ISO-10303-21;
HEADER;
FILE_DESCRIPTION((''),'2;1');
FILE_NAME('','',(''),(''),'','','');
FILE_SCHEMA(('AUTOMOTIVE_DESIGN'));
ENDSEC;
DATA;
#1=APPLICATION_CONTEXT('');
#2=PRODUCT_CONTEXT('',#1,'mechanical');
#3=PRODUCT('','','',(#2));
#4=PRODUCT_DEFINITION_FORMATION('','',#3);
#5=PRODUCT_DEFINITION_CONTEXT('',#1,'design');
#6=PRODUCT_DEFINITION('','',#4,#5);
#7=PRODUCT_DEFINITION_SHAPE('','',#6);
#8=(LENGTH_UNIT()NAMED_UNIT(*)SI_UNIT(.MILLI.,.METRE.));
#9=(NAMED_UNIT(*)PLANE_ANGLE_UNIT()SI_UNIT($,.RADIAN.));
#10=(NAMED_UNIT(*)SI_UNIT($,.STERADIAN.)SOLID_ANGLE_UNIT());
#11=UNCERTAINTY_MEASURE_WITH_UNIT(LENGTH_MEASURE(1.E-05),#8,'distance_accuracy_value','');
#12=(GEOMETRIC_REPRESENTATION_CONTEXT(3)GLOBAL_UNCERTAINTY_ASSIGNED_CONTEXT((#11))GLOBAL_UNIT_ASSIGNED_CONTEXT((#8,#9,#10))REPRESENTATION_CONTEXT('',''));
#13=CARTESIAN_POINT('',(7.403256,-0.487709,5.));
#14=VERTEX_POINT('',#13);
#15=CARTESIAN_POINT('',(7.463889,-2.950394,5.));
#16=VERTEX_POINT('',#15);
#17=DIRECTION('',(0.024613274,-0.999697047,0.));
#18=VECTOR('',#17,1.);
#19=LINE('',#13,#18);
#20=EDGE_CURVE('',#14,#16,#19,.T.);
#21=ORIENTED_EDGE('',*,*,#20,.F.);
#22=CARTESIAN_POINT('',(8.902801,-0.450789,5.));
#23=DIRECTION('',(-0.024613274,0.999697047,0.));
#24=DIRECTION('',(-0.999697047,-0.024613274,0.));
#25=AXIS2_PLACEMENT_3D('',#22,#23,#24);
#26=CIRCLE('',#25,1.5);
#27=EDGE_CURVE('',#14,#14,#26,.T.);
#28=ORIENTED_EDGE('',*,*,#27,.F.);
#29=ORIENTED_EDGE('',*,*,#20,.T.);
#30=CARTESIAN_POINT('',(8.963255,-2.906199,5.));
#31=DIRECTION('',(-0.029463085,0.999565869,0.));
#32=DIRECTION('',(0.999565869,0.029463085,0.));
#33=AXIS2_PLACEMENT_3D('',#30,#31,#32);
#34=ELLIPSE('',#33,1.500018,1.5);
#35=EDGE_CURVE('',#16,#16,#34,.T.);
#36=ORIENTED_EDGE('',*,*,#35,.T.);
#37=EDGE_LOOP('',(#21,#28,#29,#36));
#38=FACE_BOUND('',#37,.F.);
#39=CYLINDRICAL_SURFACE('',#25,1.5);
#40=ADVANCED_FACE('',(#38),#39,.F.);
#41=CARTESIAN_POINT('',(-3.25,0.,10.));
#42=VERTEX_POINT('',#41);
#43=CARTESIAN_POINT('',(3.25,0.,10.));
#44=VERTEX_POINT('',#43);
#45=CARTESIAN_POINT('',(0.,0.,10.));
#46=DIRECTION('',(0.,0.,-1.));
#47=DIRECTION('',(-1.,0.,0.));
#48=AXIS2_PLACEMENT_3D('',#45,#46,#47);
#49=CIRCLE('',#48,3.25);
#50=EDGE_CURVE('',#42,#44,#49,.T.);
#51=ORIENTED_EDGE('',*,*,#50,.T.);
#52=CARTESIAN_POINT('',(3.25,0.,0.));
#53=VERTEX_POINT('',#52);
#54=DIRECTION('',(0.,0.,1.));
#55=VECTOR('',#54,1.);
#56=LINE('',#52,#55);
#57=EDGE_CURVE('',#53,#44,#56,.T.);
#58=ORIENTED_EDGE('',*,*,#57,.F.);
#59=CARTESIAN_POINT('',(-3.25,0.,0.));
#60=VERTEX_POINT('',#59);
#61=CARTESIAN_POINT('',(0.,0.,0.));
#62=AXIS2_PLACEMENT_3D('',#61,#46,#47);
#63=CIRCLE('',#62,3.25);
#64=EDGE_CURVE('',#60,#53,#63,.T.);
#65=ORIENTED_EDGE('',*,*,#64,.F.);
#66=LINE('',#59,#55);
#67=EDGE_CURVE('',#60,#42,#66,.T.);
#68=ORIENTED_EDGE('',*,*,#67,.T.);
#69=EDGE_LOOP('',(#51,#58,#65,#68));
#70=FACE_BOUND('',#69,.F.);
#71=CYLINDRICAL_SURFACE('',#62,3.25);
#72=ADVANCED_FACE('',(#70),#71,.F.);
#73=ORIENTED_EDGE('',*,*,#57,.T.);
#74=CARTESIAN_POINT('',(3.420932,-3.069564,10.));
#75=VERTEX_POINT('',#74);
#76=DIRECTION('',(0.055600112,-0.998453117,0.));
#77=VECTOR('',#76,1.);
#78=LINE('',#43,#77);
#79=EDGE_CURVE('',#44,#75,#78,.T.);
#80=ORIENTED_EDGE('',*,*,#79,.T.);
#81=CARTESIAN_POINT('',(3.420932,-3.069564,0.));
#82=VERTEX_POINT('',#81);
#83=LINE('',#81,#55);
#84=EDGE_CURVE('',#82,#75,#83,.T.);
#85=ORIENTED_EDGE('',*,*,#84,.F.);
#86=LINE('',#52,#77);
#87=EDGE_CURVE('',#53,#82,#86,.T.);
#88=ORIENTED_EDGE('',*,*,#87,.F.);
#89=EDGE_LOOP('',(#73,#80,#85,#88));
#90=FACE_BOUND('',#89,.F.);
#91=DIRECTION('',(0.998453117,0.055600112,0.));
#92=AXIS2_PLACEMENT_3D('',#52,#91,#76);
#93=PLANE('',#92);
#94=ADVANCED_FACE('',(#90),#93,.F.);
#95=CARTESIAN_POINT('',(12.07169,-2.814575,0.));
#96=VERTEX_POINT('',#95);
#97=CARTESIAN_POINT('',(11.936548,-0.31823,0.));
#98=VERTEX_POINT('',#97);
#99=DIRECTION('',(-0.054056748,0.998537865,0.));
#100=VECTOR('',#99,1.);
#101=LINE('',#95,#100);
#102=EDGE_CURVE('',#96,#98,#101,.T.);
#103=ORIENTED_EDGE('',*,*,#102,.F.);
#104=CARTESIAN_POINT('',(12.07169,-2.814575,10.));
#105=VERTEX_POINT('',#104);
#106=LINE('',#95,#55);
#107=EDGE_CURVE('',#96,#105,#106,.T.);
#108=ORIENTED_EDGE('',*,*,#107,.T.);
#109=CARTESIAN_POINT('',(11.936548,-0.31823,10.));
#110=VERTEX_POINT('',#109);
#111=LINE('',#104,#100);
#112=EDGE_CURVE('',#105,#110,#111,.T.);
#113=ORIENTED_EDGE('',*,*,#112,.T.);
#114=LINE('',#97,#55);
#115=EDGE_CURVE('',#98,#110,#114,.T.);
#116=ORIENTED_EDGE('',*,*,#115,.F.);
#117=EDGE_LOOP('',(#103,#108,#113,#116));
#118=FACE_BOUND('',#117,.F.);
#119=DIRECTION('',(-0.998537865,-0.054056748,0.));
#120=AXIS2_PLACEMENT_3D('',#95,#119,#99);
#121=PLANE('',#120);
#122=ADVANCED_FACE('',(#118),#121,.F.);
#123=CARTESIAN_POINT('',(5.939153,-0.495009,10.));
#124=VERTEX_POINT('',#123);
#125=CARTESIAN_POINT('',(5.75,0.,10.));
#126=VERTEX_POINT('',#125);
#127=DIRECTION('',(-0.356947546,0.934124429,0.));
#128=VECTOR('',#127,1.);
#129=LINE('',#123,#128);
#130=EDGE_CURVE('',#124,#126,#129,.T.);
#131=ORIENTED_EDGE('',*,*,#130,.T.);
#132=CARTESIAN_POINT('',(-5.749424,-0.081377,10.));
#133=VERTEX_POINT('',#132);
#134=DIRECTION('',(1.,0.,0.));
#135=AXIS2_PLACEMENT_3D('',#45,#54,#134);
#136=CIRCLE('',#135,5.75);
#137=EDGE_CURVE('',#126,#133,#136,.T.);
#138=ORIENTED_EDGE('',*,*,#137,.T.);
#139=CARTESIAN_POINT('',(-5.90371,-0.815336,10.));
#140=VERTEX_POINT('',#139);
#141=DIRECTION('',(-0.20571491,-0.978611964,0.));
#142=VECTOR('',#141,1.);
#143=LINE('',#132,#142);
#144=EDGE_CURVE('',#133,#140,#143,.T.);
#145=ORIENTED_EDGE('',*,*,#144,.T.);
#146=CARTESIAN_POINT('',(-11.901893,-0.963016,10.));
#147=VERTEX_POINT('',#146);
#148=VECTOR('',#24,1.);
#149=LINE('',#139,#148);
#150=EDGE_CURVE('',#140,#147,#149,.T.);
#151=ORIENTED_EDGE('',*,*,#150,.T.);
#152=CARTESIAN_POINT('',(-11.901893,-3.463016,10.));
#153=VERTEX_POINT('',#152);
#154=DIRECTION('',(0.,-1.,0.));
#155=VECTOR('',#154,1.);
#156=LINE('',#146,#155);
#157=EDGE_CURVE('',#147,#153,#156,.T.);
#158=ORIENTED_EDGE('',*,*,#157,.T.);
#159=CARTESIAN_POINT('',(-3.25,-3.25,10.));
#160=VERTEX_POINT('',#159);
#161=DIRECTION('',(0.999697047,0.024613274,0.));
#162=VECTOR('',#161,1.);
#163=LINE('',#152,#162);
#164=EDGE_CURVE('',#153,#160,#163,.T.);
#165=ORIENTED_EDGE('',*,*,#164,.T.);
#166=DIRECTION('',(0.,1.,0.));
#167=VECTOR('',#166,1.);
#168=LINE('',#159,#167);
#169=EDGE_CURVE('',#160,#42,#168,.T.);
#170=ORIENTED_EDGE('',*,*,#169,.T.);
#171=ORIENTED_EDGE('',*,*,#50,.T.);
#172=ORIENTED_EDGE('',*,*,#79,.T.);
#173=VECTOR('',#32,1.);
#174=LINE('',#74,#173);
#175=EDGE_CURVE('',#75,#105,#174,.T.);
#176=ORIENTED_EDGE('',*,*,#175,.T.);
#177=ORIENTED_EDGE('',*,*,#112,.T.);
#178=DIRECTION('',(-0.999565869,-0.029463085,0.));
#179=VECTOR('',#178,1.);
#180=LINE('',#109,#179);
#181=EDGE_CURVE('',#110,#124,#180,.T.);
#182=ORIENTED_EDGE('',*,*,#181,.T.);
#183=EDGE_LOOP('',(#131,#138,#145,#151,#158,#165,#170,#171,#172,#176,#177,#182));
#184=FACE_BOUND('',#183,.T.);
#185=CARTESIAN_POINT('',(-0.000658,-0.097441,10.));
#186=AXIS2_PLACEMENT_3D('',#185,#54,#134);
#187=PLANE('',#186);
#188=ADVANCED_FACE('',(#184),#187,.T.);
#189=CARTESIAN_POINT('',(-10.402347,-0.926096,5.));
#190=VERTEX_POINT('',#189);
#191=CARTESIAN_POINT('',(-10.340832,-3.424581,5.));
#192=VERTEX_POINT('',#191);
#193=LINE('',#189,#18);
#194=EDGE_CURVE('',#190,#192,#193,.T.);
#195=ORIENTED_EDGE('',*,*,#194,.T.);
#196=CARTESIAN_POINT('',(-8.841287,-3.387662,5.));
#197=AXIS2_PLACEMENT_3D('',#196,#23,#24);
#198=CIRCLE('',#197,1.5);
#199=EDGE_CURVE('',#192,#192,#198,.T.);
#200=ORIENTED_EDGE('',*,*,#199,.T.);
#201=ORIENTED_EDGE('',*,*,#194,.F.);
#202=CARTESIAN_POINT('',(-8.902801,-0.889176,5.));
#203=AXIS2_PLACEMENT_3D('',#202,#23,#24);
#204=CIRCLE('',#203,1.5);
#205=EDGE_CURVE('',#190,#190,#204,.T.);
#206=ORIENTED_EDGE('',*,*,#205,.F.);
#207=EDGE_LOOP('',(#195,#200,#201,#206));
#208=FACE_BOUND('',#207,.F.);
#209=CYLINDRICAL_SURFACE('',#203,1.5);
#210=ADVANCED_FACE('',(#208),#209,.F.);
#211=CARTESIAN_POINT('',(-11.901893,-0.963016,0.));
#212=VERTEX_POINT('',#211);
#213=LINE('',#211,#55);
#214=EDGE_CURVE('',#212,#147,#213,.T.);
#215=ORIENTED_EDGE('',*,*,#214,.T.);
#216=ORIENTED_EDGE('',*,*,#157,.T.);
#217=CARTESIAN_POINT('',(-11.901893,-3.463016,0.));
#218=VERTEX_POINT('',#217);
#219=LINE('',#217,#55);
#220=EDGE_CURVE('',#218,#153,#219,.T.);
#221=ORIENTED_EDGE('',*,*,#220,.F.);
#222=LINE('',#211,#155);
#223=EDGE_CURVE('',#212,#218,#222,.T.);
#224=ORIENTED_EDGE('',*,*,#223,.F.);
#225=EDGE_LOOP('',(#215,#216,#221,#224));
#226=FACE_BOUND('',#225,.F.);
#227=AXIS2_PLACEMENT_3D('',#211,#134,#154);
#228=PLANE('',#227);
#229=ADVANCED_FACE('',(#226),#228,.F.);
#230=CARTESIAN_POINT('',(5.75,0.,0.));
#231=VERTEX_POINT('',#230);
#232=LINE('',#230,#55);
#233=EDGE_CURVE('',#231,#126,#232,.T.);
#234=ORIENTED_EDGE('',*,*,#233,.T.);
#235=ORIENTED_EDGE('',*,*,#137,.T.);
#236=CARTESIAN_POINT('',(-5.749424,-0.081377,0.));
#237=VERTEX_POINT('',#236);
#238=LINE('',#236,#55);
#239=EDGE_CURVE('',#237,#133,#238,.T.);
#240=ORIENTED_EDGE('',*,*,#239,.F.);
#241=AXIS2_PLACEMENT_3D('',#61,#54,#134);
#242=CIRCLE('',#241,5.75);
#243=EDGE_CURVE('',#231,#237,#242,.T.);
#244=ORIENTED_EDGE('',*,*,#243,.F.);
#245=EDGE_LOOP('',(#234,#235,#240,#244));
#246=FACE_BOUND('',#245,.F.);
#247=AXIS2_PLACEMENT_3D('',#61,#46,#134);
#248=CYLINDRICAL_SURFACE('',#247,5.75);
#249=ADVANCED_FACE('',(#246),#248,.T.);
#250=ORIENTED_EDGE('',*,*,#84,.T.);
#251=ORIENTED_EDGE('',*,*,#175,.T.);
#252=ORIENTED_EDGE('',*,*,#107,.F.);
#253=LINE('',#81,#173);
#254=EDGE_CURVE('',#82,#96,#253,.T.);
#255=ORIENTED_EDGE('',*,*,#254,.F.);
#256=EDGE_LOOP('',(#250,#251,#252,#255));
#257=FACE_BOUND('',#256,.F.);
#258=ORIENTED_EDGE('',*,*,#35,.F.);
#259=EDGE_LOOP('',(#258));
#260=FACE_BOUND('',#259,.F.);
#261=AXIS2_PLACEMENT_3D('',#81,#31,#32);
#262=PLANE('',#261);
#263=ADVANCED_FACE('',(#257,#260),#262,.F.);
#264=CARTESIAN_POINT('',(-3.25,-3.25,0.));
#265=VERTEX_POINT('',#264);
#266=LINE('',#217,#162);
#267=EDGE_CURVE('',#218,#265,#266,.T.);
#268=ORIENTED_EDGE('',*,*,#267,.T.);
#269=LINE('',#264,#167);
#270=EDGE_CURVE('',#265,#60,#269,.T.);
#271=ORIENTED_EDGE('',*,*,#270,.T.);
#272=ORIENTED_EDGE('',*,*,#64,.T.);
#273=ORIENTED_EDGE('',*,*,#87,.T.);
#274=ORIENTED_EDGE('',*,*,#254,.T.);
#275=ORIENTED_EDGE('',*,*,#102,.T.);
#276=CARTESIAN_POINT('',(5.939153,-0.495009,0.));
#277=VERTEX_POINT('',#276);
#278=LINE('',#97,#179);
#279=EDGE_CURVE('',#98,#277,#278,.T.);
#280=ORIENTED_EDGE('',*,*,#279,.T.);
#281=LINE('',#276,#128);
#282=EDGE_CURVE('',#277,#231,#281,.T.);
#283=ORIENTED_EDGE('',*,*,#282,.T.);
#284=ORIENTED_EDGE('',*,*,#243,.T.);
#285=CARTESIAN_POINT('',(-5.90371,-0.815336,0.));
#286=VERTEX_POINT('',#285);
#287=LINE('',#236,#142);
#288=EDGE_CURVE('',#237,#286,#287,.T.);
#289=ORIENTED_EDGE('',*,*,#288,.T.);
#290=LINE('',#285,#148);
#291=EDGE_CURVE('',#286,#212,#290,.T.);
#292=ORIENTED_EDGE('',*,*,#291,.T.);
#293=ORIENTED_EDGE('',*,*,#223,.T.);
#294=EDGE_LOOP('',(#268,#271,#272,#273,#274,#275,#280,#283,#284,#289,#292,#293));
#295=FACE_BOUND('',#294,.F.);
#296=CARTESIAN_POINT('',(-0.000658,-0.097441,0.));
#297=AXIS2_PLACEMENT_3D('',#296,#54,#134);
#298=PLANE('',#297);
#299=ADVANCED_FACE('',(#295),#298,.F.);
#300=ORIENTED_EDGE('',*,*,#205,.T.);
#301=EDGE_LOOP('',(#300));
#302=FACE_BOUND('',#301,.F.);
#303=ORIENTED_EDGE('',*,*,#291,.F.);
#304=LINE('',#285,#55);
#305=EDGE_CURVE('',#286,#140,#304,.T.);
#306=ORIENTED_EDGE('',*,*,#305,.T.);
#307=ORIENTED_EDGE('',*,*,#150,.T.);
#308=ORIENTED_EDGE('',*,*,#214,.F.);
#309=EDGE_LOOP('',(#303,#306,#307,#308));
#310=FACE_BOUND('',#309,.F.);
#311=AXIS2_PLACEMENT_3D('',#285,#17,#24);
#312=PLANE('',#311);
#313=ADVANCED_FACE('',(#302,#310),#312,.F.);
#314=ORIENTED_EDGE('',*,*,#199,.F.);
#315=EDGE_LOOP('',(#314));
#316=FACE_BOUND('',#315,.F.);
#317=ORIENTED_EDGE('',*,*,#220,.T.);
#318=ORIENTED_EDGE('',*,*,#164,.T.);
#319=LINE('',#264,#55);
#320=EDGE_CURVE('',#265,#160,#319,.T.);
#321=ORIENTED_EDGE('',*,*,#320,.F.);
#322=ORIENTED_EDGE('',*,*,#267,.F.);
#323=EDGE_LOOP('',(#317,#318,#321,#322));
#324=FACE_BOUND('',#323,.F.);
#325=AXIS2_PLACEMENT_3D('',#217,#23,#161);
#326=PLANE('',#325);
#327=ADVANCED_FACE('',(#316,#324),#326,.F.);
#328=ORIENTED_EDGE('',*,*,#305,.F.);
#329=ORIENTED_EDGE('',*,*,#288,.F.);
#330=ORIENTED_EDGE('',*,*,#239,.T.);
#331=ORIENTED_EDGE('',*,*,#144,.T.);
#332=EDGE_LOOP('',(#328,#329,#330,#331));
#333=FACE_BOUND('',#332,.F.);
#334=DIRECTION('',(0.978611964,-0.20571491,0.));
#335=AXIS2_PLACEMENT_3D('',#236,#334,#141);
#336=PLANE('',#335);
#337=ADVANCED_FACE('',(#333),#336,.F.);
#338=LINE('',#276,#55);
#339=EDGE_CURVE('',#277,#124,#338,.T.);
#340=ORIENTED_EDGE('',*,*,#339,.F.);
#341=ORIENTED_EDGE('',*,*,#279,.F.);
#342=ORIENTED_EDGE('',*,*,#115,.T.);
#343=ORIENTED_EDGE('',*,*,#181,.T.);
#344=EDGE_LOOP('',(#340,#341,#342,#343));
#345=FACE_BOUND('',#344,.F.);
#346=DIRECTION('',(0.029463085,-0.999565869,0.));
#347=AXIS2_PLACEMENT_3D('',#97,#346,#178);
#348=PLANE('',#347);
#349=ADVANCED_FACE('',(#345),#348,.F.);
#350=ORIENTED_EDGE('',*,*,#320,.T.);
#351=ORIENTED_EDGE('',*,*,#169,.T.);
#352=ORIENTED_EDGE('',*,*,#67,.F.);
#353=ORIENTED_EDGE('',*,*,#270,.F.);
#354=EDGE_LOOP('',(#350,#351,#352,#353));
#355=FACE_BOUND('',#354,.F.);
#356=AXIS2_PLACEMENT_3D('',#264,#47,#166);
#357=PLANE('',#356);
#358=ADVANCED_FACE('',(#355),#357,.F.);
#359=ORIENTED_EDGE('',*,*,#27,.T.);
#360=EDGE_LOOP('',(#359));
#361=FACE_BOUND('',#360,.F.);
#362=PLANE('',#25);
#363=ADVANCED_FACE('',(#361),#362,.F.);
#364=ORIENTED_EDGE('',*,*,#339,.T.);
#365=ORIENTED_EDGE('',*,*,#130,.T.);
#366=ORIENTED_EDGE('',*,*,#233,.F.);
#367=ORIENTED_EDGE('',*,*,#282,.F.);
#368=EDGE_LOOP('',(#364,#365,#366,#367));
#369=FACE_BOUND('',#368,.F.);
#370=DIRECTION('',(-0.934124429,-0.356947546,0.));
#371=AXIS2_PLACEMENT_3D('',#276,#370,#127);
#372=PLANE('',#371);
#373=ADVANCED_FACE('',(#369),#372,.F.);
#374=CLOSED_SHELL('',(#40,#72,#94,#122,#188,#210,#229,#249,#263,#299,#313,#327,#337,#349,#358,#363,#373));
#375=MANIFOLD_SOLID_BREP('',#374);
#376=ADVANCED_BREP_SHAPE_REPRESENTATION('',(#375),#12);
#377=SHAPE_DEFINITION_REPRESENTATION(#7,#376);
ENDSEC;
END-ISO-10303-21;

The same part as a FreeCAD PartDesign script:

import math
import FreeCAD as App
import Part
import Sketcher

V = App.Vector
Q = App.Units.Quantity

doc = App.newDocument("Part")
body = doc.addObject("PartDesign::Body", "Body")

# Sketch on XY plane
sketch1 = body.newObject("Sketcher::SketchObject", "Sketch")
sketch1.AttachmentSupport = (doc.getObject("XY_Plane"), [""])
sketch1.MapMode = "FlatFace"
sketch1.addGeometry([
    Part.ArcOfCircle(Part.Circle(V(0, 0, 0), V(0, 0, 1), 3.25), math.radians(0), math.radians(180)),  # 0
    Part.LineSegment(V(3.25, 0, 0), V(3.420932, -3.069564, 0)),  # 1
    Part.LineSegment(V(3.420932, -3.069564, 0), V(12.07169, -2.814575, 0)),  # 2
    Part.LineSegment(V(12.07169, -2.814575, 0), V(11.936548, -0.31823, 0)),  # 3
    Part.LineSegment(V(11.936548, -0.31823, 0), V(5.939153, -0.495009, 0)),  # 4
    Part.LineSegment(V(5.939153, -0.495009, 0), V(5.75, 0, 0)),  # 5
    Part.ArcOfCircle(Part.Circle(V(0, 0, 0), V(0, 0, 1), 5.75), math.radians(0), math.radians(180.81091)),  # 6
    Part.LineSegment(V(-5.749424, -0.081377, 0), V(-5.90371, -0.815336, 0)),  # 7
    Part.LineSegment(V(-5.90371, -0.815336, 0), V(-11.901893, -0.963016, 0)),  # 8
    Part.LineSegment(V(-11.901893, -0.963016, 0), V(-11.901893, -3.463016, 0)),  # 9
    Part.LineSegment(V(-11.901893, -3.463016, 0), V(-3.25, -3.25, 0)),  # 10
    Part.LineSegment(V(-3.25, -3.25, 0), V(-3.25, 0, 0)),  # 11
], False)
sketch1.addConstraint([
    Sketcher.Constraint("Coincident", 0, 1, 1, 1),
    Sketcher.Constraint("Coincident", 1, 2, 2, 1),
    Sketcher.Constraint("Coincident", 2, 2, 3, 1),
    Sketcher.Constraint("Coincident", 3, 2, 4, 1),
    Sketcher.Constraint("Coincident", 4, 2, 5, 1),
    Sketcher.Constraint("Coincident", 5, 2, 6, 1),
    Sketcher.Constraint("Coincident", 6, 2, 7, 1),
    Sketcher.Constraint("Coincident", 7, 2, 8, 1),
    Sketcher.Constraint("Coincident", 8, 2, 9, 1),
    Sketcher.Constraint("Coincident", 9, 2, 10, 1),
    Sketcher.Constraint("Coincident", 10, 2, 11, 1),
    Sketcher.Constraint("Coincident", 11, 2, 0, 2),
    Sketcher.Constraint("Vertical", 9),
    Sketcher.Constraint("Vertical", 11),
    Sketcher.Constraint("Coincident", 0, 3, -1, 1),
    Sketcher.Constraint("Coincident", 6, 3, -1, 1),
    Sketcher.Constraint("PointOnObject", 0, 1, -1),
    Sketcher.Constraint("PointOnObject", 5, 2, -1),
    Sketcher.Constraint("PointOnObject", 11, 2, -1),
    Sketcher.Constraint("Radius", 0, Q("3.25 mm")),
    Sketcher.Constraint("Radius", 6, Q("5.75 mm")),
    Sketcher.Constraint("Distance", 4, Q("6 mm")),
    Sketcher.Constraint("Distance", 8, Q("6 mm")),
    Sketcher.Constraint("DistanceY", 9, 2, 9, 1, Q("2.5 mm")),
    Sketcher.Constraint("Distance", 3, Q("2.5 mm")),
    Sketcher.Constraint("DistanceY", 11, 1, 11, 2, Q("3.25 mm")),
    Sketcher.Constraint("Distance", 7, Q("0.75 mm")),
    Sketcher.Constraint("Distance", 1, Q("3.074319 mm")),
    Sketcher.Constraint("DistanceX", -1, 1, 2, 2, Q("12.07169 mm")),
    Sketcher.Constraint("DistanceY", 3, 2, -1, 1, Q("0.31823 mm")),
    Sketcher.Constraint("DistanceY", 4, 2, -1, 1, Q("0.495009 mm")),
    Sketcher.Constraint("DistanceX", 7, 2, -1, 1, Q("5.90371 mm")),
    Sketcher.Constraint("DistanceY", 1, 2, 2, 2, Q("0.254989 mm")),
    Sketcher.Constraint("DistanceX", 3, 2, 2, 2, Q("0.135142 mm")),
    Sketcher.Constraint("DistanceY", 8, 2, 7, 2, Q("0.14768 mm")),
    Sketcher.Constraint("DistanceX", 8, 2, 6, 2, Q("6.152468 mm")),
])
pad1 = body.newObject("PartDesign::Pad", "Pad")
pad1.Profile = sketch1
pad1.Length = 10

# Sketch on an angled plane
sketch2 = body.newObject("Sketcher::SketchObject", "Sketch001")
sketch2.Placement = App.Placement(V(0.016485, -0.669577, 0), App.Rotation(V(-0.999697047, -0.024613274, 0), V(0, 0, 0.999999999), V(-0.024613274, 0.999697047, 0), "ZXY"))
sketch2.addGeometry([
    Part.Circle(V(-8.9, 5, 0), V(0, 0, 1), 1.5),
    Part.Circle(V(8.9, 5, 0), V(0, 0, 1), 1.5),
], False)
sketch2.addConstraint([
    Sketcher.Constraint("Equal", 0, 1),
    Sketcher.Constraint("Horizontal", 0, 3, 1, 3),
    Sketcher.Constraint("Diameter", 0, Q("3 mm")),
    Sketcher.Constraint("DistanceY", -1, 1, 0, 3, Q("5 mm")),
    Sketcher.Constraint("DistanceX", 0, 3, 1, 3, Q("17.810999 mm")),
    Sketcher.Constraint("DistanceX", 0, 3, -1, 1, Q("8.889009 mm")),
])
pocket1 = body.newObject("PartDesign::Pocket", "Pocket")
pocket1.Profile = sketch2
pocket1.Type = "ThroughAll"

doc.recompute()
